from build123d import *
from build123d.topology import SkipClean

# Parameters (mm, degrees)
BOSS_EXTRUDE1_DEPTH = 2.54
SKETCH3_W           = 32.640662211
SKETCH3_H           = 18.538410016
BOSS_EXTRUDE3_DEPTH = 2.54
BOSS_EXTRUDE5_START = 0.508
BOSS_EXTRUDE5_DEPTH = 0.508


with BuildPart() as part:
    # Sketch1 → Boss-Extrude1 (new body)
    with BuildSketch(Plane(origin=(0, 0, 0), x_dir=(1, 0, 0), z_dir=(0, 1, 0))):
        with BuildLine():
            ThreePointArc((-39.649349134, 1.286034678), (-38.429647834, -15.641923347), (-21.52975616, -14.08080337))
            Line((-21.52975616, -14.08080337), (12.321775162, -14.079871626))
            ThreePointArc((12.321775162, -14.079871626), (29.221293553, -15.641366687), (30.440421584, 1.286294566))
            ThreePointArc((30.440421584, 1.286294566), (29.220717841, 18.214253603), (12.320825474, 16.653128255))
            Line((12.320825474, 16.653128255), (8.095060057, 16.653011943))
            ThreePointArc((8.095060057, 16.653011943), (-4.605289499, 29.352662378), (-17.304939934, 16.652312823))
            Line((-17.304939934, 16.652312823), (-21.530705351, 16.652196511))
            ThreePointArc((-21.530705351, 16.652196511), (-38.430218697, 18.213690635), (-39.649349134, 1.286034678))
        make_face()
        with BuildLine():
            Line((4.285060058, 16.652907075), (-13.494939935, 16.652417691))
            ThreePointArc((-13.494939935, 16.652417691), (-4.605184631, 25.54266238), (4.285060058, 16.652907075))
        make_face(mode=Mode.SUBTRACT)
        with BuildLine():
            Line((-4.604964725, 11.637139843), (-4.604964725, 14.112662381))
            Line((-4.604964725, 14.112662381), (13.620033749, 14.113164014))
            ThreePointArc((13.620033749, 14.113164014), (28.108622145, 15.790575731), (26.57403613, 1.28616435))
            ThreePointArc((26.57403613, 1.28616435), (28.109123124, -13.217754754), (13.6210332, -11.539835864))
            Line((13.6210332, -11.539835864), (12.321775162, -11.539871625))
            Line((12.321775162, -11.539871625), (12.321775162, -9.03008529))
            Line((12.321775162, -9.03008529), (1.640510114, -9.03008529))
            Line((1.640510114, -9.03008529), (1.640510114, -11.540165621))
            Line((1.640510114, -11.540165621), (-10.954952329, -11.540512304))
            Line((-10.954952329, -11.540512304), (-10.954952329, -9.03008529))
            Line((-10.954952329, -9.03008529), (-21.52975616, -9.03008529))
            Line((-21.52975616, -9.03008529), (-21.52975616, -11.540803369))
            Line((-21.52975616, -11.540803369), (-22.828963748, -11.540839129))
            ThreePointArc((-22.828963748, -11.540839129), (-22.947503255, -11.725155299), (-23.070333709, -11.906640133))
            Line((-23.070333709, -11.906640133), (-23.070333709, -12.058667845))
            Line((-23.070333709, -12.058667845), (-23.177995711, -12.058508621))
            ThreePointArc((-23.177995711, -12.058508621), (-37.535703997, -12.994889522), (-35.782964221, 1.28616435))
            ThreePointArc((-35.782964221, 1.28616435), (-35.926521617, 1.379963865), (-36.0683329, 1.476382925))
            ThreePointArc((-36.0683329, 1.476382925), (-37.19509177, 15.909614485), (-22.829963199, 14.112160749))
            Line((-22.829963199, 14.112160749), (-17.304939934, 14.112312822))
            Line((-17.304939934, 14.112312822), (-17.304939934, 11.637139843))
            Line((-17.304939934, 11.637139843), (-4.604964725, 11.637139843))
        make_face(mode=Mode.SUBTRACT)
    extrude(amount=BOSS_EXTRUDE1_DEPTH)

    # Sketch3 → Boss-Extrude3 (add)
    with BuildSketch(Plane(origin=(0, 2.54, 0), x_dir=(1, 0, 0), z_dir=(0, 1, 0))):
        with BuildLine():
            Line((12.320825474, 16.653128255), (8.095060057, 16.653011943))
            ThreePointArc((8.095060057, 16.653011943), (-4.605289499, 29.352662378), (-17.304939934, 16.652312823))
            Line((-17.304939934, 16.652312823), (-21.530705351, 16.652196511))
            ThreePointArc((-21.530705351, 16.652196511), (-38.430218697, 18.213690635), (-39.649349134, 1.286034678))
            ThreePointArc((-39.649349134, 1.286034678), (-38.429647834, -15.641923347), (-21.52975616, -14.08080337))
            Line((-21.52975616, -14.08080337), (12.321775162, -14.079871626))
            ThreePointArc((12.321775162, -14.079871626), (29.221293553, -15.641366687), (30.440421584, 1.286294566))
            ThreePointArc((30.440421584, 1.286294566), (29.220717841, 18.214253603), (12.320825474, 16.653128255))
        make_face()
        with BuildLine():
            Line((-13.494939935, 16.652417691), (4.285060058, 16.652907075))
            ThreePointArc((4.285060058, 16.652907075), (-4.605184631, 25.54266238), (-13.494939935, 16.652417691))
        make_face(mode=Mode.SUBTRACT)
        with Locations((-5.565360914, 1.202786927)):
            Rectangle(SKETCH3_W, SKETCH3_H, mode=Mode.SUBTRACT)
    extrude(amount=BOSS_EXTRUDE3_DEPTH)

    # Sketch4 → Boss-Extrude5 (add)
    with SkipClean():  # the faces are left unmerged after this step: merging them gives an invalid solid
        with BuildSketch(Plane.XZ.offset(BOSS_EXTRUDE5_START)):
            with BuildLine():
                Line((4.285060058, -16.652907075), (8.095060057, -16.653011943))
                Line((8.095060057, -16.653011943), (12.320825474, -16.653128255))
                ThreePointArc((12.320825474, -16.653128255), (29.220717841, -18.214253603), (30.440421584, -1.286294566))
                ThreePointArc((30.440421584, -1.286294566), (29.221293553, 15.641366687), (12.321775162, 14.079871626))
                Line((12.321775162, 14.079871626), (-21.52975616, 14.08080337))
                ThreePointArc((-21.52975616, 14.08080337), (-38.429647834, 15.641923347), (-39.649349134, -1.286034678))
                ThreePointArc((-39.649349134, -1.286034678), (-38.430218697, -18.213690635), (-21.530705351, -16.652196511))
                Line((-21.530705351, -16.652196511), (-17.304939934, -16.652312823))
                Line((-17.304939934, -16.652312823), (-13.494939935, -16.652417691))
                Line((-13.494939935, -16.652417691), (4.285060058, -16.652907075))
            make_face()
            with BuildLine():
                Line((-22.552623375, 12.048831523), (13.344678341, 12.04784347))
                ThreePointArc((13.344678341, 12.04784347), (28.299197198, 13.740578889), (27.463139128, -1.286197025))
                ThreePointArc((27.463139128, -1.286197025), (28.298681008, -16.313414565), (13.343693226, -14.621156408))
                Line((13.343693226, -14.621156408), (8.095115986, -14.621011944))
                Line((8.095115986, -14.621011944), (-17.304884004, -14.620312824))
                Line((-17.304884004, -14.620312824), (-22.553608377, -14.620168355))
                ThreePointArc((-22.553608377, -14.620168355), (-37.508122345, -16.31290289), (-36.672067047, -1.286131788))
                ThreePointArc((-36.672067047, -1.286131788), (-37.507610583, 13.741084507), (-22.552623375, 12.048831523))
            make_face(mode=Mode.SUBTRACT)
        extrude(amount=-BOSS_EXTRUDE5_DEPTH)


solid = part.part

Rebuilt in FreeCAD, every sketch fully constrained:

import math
import FreeCAD as App
import Part
import Sketcher

V = App.Vector
Q = App.Units.Quantity


def add_polygon(sketch, points):
    """Adds a closed chain of lines whose ends are joined by coincident constraints."""
    first, n = sketch.GeometryCount, len(points)
    for a, b in zip(points, points[1:] + points[:1]):
        sketch.addGeometry(Part.LineSegment(App.Vector(*a, 0), App.Vector(*b, 0)), False)
    for i in range(n):
        sketch.addConstraint(Sketcher.Constraint("Coincident", first + i, 2, first + (i + 1) % n, 1))

doc = App.newDocument("Part")
body = doc.addObject("PartDesign::Body", "Body")

# Sketch on XZ plane
sketch1 = body.newObject("Sketcher::SketchObject", "Sketch")
sketch1.AttachmentSupport = (doc.getObject("XZ_Plane"), [""])
sketch1.MapMode = "FlatFace"
sketch1.addGeometry([
    Part.ArcOfCircle(Part.Circle(V(-30.744663, 6.580281, 0), V(0, 0, 1), 11.881597), math.radians(39.144049), math.radians(221.457076)),  # 0
    Part.LineSegment(V(-21.529756, 14.080803, 0), V(12.321775, 14.079872, 0)),  # 1
    Part.ArcOfCircle(Part.Circle(V(21.536636, 6.580187, 0), V(0, 0, 1), 11.881032), math.radians(-41.460552), math.radians(140.858946)),  # 2
    Part.ArcOfCircle(Part.Circle(V(21.535735, -9.15261, 0), V(0, 0, 1), 11.881597), math.radians(-140.855974), math.radians(41.457073)),  # 3
    Part.LineSegment(V(12.320825, -16.653128, 0), V(8.09506, -16.653012, 0)),  # 4
    Part.ArcOfCircle(Part.Circle(V(-4.60494, -16.652662, 0), V(0, 0, 1), 12.7), math.radians(179.998423), math.radians(359.998423)),  # 5
    Part.LineSegment(V(-17.30494, -16.652313, 0), V(-21.530705, -16.652197, 0)),  # 6
    Part.ArcOfCircle(Part.Circle(V(-30.745564, -9.152513, 0), V(0, 0, 1), 11.88103), math.radians(138.539463), math.radians(320.858939)),  # 7
    Part.LineSegment(V(-17.30494, -11.63714, 0), V(-4.604965, -11.63714, 0)),  # 8
    Part.LineSegment(V(-4.604965, -11.63714, 0), V(-4.604965, -14.112662, 0)),  # 9
    Part.LineSegment(V(-4.604965, -14.112662, 0), V(13.620034, -14.113164, 0)),  # 10
    Part.ArcOfCircle(Part.Circle(V(21.535735, -9.15261, 0), V(0, 0, 1), 9.341597), math.radians(-147.925749), math.radians(57.361252)),  # 11
    Part.ArcOfCircle(Part.Circle(V(21.536636, 6.580187, 0), V(0, 0, 1), 9.341032), math.radians(-57.365595), math.radians(147.930136)),  # 12
    Part.LineSegment(V(13.621033, 11.539836, 0), V(12.321775, 11.539872, 0)),  # 13
    Part.LineSegment(V(12.321775, 11.539872, 0), V(12.321775, 9.030085, 0)),  # 14
    Part.LineSegment(V(12.321775, 9.030085, 0), V(1.64051, 9.030085, 0)),  # 15
    Part.LineSegment(V(1.64051, 9.030085, 0), V(1.64051, 11.540166, 0)),  # 16
    Part.LineSegment(V(1.64051, 11.540166, 0), V(-10.954952, 11.540512, 0)),  # 17
    Part.LineSegment(V(-10.954952, 11.540512, 0), V(-10.954952, 9.030085, 0)),  # 18
    Part.LineSegment(V(-10.954952, 9.030085, 0), V(-21.529756, 9.030085, 0)),  # 19
    Part.LineSegment(V(-21.529756, 9.030085, 0), V(-21.529756, 11.540803, 0)),  # 20
    Part.LineSegment(V(-21.529756, 11.540803, 0), V(-22.828964, 11.540839, 0)),  # 21
    Part.ArcOfCircle(Part.Circle(V(-30.744663, 6.580281, 0), V(0, 0, 1), 9.341597), math.radians(32.074277), math.radians(34.762535)),  # 22
    Part.LineSegment(V(-23.070334, 11.90664, 0), V(-23.070334, 12.058668, 0)),  # 23
    Part.LineSegment(V(-23.070334, 12.058668, 0), V(-23.177996, 12.058509, 0)),  # 24
    Part.ArcOfCircle(Part.Circle(V(-30.744663, 6.580281, 0), V(0, 0, 1), 9.341597), math.radians(35.904342), math.radians(237.36125)),  # 25
    Part.ArcOfCircle(Part.Circle(V(-30.745564, -9.152511, 0), V(0, 0, 1), 9.341029), math.radians(122.63442), math.radians(124.73815)),  # 26
    Part.ArcOfCircle(Part.Circle(V(-30.745564, -9.152513, 0), V(0, 0, 1), 9.34103), math.radians(124.73815), math.radians(327.93013)),  # 27
    Part.LineSegment(V(-22.829963, -14.112161, 0), V(-17.30494, -14.112313, 0)),  # 28
    Part.LineSegment(V(-17.30494, -14.112313, 0), V(-17.30494, -11.63714, 0)),  # 29
    Part.ArcOfCircle(Part.Circle(V(-4.60494, -16.652662, 0), V(0, 0, 1), 8.89), math.radians(179.998423), math.radians(359.998423)),  # 30
    Part.LineSegment(V(4.28506, -16.652907, 0), V(-13.49494, -16.652418, 0)),  # 31
], False)
sketch1.addConstraint([
    Sketcher.Constraint("Coincident", 0, 1, 1, 1),
    Sketcher.Constraint("Coincident", 1, 2, 2, 2),
    Sketcher.Constraint("Coincident", 2, 1, 3, 2),
    Sketcher.Constraint("Coincident", 3, 1, 4, 1),
    Sketcher.Constraint("Coincident", 4, 2, 5, 2),
    Sketcher.Constraint("Coincident", 5, 1, 6, 1),
    Sketcher.Constraint("Coincident", 6, 2, 7, 2),
    Sketcher.Constraint("Coincident", 7, 1, 0, 2),
    Sketcher.Constraint("Coincident", 8, 2, 9, 1),
    Sketcher.Constraint("Coincident", 9, 2, 10, 1),
    Sketcher.Constraint("Coincident", 10, 2, 11, 1),
    Sketcher.Constraint("Coincident", 11, 2, 12, 1),
    Sketcher.Constraint("Coincident", 12, 2, 13, 1),
    Sketcher.Constraint("Coincident", 13, 2, 14, 1),
    Sketcher.Constraint("Coincident", 14, 2, 15, 1),
    Sketcher.Constraint("Coincident", 15, 2, 16, 1),
    Sketcher.Constraint("Coincident", 16, 2, 17, 1),
    Sketcher.Constraint("Coincident", 17, 2, 18, 1),
    Sketcher.Constraint("Coincident", 18, 2, 19, 1),
    Sketcher.Constraint("Coincident", 19, 2, 20, 1),
    Sketcher.Constraint("Coincident", 20, 2, 21, 1),
    Sketcher.Constraint("Coincident", 21, 2, 22, 1),
    Sketcher.Constraint("Coincident", 22, 2, 23, 1),
    Sketcher.Constraint("Coincident", 23, 2, 24, 1),
    Sketcher.Constraint("Coincident", 24, 2, 25, 1),
    Sketcher.Constraint("Coincident", 25, 2, 26, 1),
    Sketcher.Constraint("Tangent", 26, 2, 27, 1),
    Sketcher.Constraint("Coincident", 27, 2, 28, 1),
    Sketcher.Constraint("Coincident", 28, 2, 29, 1),
    Sketcher.Constraint("Coincident", 29, 2, 8, 1),
    Sketcher.Constraint("Coincident", 30, 1, 31, 2),
    Sketcher.Constraint("Coincident", 31, 1, 30, 2),
    Sketcher.Constraint("Horizontal", 8),
    Sketcher.Constraint("Vertical", 9),
    Sketcher.Constraint("Vertical", 14),
    Sketcher.Constraint("Horizontal", 15),
    Sketcher.Constraint("Vertical", 16),
    Sketcher.Constraint("Vertical", 18),
    Sketcher.Constraint("Horizontal", 19),
    Sketcher.Constraint("Vertical", 20),
    Sketcher.Constraint("Vertical", 23),
    Sketcher.Constraint("Vertical", 29),
    Sketcher.Constraint("Coincident", 11, 3, 3, 3),
    Sketcher.Constraint("Coincident", 12, 3, 2, 3),
    Sketcher.Constraint("Coincident", 22, 3, 0, 3),
    Sketcher.Constraint("Coincident", 25, 3, 0, 3),
    Sketcher.Constraint("Coincident", 26, 3, 7, 3),
    Sketcher.Constraint("Coincident", 30, 3, 5, 3),
    Sketcher.Constraint("Equal", 0, 3),
    Sketcher.Constraint("Equal", 11, 22),
    Sketcher.Constraint("Equal", 22, 25),
    Sketcher.Constraint("Equal", 26, 27),
    Sketcher.Constraint("Parallel", 1, 4),
    Sketcher.Constraint("Parallel", 4, 6),
    Sketcher.Constraint("Parallel", 6, 10),
    Sketcher.Constraint("Parallel", 10, 13),
    Sketcher.Constraint("Parallel", 13, 17),
    Sketcher.Constraint("Parallel", 17, 21),
    Sketcher.Constraint("Parallel", 21, 28),
    Sketcher.Constraint("Parallel", 28, 31),
    Sketcher.Constraint("Horizontal", 15, 2, 18, 2),
    Sketcher.Constraint("Horizontal", 11, 2, 25, 2),
    Sketcher.Constraint("Vertical", 1, 2, 13, 2),
    Sketcher.Constraint("Vertical", 0, 1, 19, 2),
    Sketcher.Constraint("Vertical", 5, 1, 28, 2),
    Sketcher.Constraint("Equal", 4, 6),
    Sketcher.Constraint("Radius", 5, Q("0.5 in")),
    Sketcher.Constraint("Radius", 30, Q("0.35 in")),
    Sketcher.Constraint("DistanceY", 5, 3, 9, 2, Q("0.1 in")),
    Sketcher.Constraint("DistanceY", 13, 2, 1, 2, Q("0.1 in")),
    Sketcher.Constraint("DistanceY", 20, 2, 0, 1, Q("0.1 in")),
    Sketcher.Constraint("DistanceY", 5, 1, 28, 2, Q("0.1 in")),
    Sketcher.Constraint("Radius", 7, 11.88103),
    Sketcher.Constraint("Radius", 26, 9.341029),
    Sketcher.Constraint("Radius", 0, 11.881597),
    Sketcher.Constraint("Radius", 2, 11.881032),
    Sketcher.Constraint("Radius", 11, 9.341597),
    Sketcher.Constraint("Radius", 12, 9.341032),
    Sketcher.Constraint("Distance", 10, 18.224998),
    Sketcher.Constraint("DistanceY", 16, 1, 16, 2, 2.51008),
    Sketcher.Constraint("DistanceY", 20, 1, 20, 2, 2.510718),
    Sketcher.Constraint("DistanceX", 0, 3, 2, 3, 52.2813),
    Sketcher.Constraint("DistanceX", 3, 3, 2, 3, 0.000901),
    Sketcher.Constraint("DistanceX", 7, 3, 0, 3, 0.0009),
    Sketcher.Constraint("DistanceY", 7, 3, 2, 3, 15.7327),
    Sketcher.Constraint("DistanceY", 5, 1, 7, 3, 7.4998),
    Sketcher.Constraint("DistanceX", 10, 2, 3, 3, 7.915702),
    Sketcher.Constraint("DistanceY", 10, 2, 9, 2, 0.000502),
    Sketcher.Constraint("DistanceX", 2, 3, 11, 2, 5.0374),
    Sketcher.Constraint("DistanceY", 11, 2, 12, 2, 12.826),
    Sketcher.Constraint("DistanceY", 21, 2, 22, 2, 0.365801),
    Sketcher.Constraint("DistanceX", 8, 1, 8, 2, 12.699975),
    Sketcher.Constraint("DistanceX", 15, 2, 15, 1, 10.681265),
    Sketcher.Constraint("DistanceX", 19, 2, 19, 1, 10.574804),
    Sketcher.Constraint("DistanceY", 9, 2, 9, 1, 2.475523),
    Sketcher.Constraint("DistanceY", 23, 1, 23, 2, 0.152028),
    Sketcher.Constraint("DistanceY", -1, 1, 0, 3, 6.580281),
    Sketcher.Constraint("DistanceX", 5, 3, -1, 1, 4.60494),
    Sketcher.Constraint("DistanceY", -1, 1, 24, 2, 12.058509),
    Sketcher.Constraint("DistanceX", 26, 2, 25, 2, 0.285369),
    Sketcher.Constraint("DistanceY", 30, 1, 6, 2, 0.000221),
])
pad1 = body.newObject("PartDesign::Pad", "Pad")
pad1.Profile = sketch1
pad1.Length = Q("0.1 in")
pad1.Reversed = True

# Sketch on XZ plane
sketch2 = body.newObject("Sketcher::SketchObject", "Sketch001")
sketch2.AttachmentSupport = (doc.getObject("XZ_Plane"), [""])
sketch2.MapMode = "FlatFace"
sketch2.AttachmentOffset = App.Placement(V(0, 0, -0.1 * 25.4), App.Rotation())
sketch2.addGeometry(Part.LineSegment(V(12.320825, -16.653128, 0), V(8.09506, -16.653012, 0)), False)  # 0
sketch2.addGeometry(Part.ArcOfCircle(Part.Circle(V(-4.60494, -16.652662, 0), V(0, 0, 1), 12.7), math.radians(179.998423), math.radians(359.998423)), False)  # 1
sketch2.addGeometry(Part.LineSegment(V(-17.30494, -16.652313, 0), V(-21.530705, -16.652197, 0)), False)  # 2
sketch2.addGeometry(Part.ArcOfCircle(Part.Circle(V(-30.745564, -9.152513, 0), V(0, 0, 1), 11.88103), math.radians(138.539463), math.radians(320.858939)), False)  # 3
sketch2.addGeometry(Part.ArcOfCircle(Part.Circle(V(-30.744663, 6.580281, 0), V(0, 0, 1), 11.881597), math.radians(39.144049), math.radians(221.457076)), False)  # 4
sketch2.addGeometry(Part.LineSegment(V(-21.529756, 14.080803, 0), V(12.321775, 14.079872, 0)), False)  # 5
sketch2.addGeometry(Part.ArcOfCircle(Part.Circle(V(21.536636, 6.580187, 0), V(0, 0, 1), 11.881032), math.radians(-41.460552), math.radians(140.858946)), False)  # 6
sketch2.addGeometry(Part.ArcOfCircle(Part.Circle(V(21.535735, -9.15261, 0), V(0, 0, 1), 11.881597), math.radians(-140.855974), math.radians(41.457073)), False)  # 7
add_polygon(sketch2, [(10.75497, 8.066418), (-21.885692, 8.066418), (-21.885692, -10.471992), (10.75497, -10.471992)])  # lines 8-11
sketch2.addGeometry(Part.LineSegment(V(4.28506, -16.652907, 0), V(-13.49494, -16.652418, 0)), False)  # 12
sketch2.addGeometry(Part.ArcOfCircle(Part.Circle(V(-4.60494, -16.652662, 0), V(0, 0, 1), 8.89), math.radians(179.998423), math.radians(359.998423)), False)  # 13
sketch2.addConstraint([
    Sketcher.Constraint("Coincident", 0, 2, 1, 2),
    Sketcher.Constraint("Coincident", 1, 1, 2, 1),
    Sketcher.Constraint("Coincident", 2, 2, 3, 2),
    Sketcher.Constraint("Coincident", 3, 1, 4, 2),
    Sketcher.Constraint("Coincident", 4, 1, 5, 1),
    Sketcher.Constraint("Coincident", 5, 2, 6, 2),
    Sketcher.Constraint("Coincident", 6, 1, 7, 2),
    Sketcher.Constraint("Coincident", 7, 1, 0, 1),
    Sketcher.Constraint("Coincident", 12, 1, 13, 2),
    Sketcher.Constraint("Coincident", 13, 1, 12, 2),
    Sketcher.Constraint("Horizontal", 8),
    Sketcher.Constraint("Vertical", 9),
    Sketcher.Constraint("Horizontal", 10),
    Sketcher.Constraint("Vertical", 11),
    Sketcher.Constraint("Coincident", 13, 3, 1, 3),
    Sketcher.Constraint("Equal", 4, 7),
    Sketcher.Constraint("Parallel", 0, 2),
    Sketcher.Constraint("Parallel", 2, 5),
    Sketcher.Constraint("Parallel", 5, 12),
    Sketcher.Constraint("Equal", 0, 2),
    Sketcher.Constraint("Radius", 1, Q("0.5 in")),
    Sketcher.Constraint("Radius", 13, Q("0.35 in")),
    Sketcher.Constraint("Radius", 3, 11.88103),
    Sketcher.Constraint("Radius", 4, 11.881597),
    Sketcher.Constraint("Radius", 6, 11.881032),
    Sketcher.Constraint("DistanceY", 9, 2, 9, 1, 18.53841),
    Sketcher.Constraint("DistanceX", 3, 3, 4, 3, 0.0009),
    Sketcher.Constraint("DistanceX", 4, 3, 6, 3, 52.2813),
    Sketcher.Constraint("DistanceY", 3, 3, 6, 3, 15.7327),
    Sketcher.Constraint("DistanceX", 7, 3, 6, 3, 0.000901),
    Sketcher.Constraint("DistanceY", 0, 2, 6, 3, 23.233199),
    Sketcher.Constraint("DistanceY", 1, 1, 3, 3, 7.4998),
    Sketcher.Constraint("DistanceY", 2, 2, 4, 1, 30.733),
    Sketcher.Constraint("Distance", 5, 33.851531),
    Sketcher.Constraint("DistanceX", 8, 2, 8, 1, 32.640662),
    Sketcher.Constraint("DistanceX", 1, 3, -1, 1, 4.60494),
    Sketcher.Constraint("DistanceY", -1, 1, 4, 3, 6.580281),
    Sketcher.Constraint("DistanceY", 7, 3, -1, 1, 9.15261),
    Sketcher.Constraint("DistanceY", 0, 2, -1, 1, 16.653012),
    Sketcher.Constraint("DistanceY", -1, 1, 8, 2, 8.066418),
    Sketcher.Constraint("DistanceX", -1, 1, 10, 2, 10.75497),
    Sketcher.Constraint("DistanceY", 1, 3, 3, 3, 7.50015),
    Sketcher.Constraint("DistanceY", 7, 1, 12, 1, 0.000221),
])
pad2 = body.newObject("PartDesign::Pad", "Pad001")
pad2.Profile = sketch2
pad2.Length = Q("0.1 in")
pad2.Reversed = True

# Sketch on XZ plane
sketch3 = body.newObject("Sketcher::SketchObject", "Sketch002")
sketch3.AttachmentSupport = (doc.getObject("XZ_Plane"), [""])
sketch3.MapMode = "FlatFace"
sketch3.AttachmentOffset = App.Placement(V(0, 0, 0.02 * 25.4), App.Rotation())
sketch3.addGeometry([
    Part.LineSegment(V(8.09506, -16.653012, 0), V(12.320825, -16.653128, 0)),  # 0
    Part.ArcOfCircle(Part.Circle(V(21.535735, -9.15261, 0), V(0, 0, 1), 11.881597), math.radians(-140.855974), math.radians(41.457073)),  # 1
    Part.ArcOfCircle(Part.Circle(V(21.536636, 6.580187, 0), V(0, 0, 1), 11.881032), math.radians(-41.460552), math.radians(140.858946)),  # 2
    Part.LineSegment(V(12.321775, 14.079872, 0), V(-21.529756, 14.080803, 0)),  # 3
    Part.ArcOfCircle(Part.Circle(V(-30.744663, 6.580281, 0), V(0, 0, 1), 11.881597), math.radians(39.144049), math.radians(221.457076)),  # 4
    Part.ArcOfCircle(Part.Circle(V(-30.745564, -9.152513, 0), V(0, 0, 1), 11.88103), math.radians(138.539463), math.radians(320.858939)),  # 5
    Part.LineSegment(V(-21.530705, -16.652197, 0), V(-17.30494, -16.652313, 0)),  # 6
    Part.LineSegment(V(-17.30494, -16.652313, 0), V(8.09506, -16.653012, 0)),  # 7
    Part.ArcOfCircle(Part.Circle(V(-30.744663, 6.580281, 0), V(0, 0, 1), 9.849597), math.radians(33.724871), math.radians(233.001688)),  # 8
    Part.LineSegment(V(-22.552623, 12.048832, 0), V(13.344678, 12.047843, 0)),  # 9
    Part.ArcOfCircle(Part.Circle(V(21.536636, 6.580187, 0), V(0, 0, 1), 9.849032), math.radians(-53.005774), math.radians(146.279192)),  # 10
    Part.ArcOfCircle(Part.Circle(V(21.535735, -9.15261, 0), V(0, 0, 1), 9.849597), math.radians(-146.275155), math.radians(53.001688)),  # 11
    Part.LineSegment(V(13.343693, -14.621156, 0), V(8.095116, -14.621012, 0)),  # 12
    Part.LineSegment(V(8.095116, -14.621012, 0), V(-17.304884, -14.620313, 0)),  # 13
    Part.LineSegment(V(-17.304884, -14.620313, 0), V(-22.553608, -14.620168, 0)),  # 14
    Part.ArcOfCircle(Part.Circle(V(-30.745564, -9.152513, 0), V(0, 0, 1), 9.84903), math.radians(126.994241), math.radians(326.279185)),  # 15
], False)
sketch3.addConstraint([
    Sketcher.Constraint("Coincident", 0, 2, 1, 1),
    Sketcher.Constraint("Coincident", 1, 2, 2, 1),
    Sketcher.Constraint("Coincident", 2, 2, 3, 1),
    Sketcher.Constraint("Coincident", 3, 2, 4, 1),
    Sketcher.Constraint("Coincident", 4, 2, 5, 1),
    Sketcher.Constraint("Coincident", 5, 2, 6, 1),
    Sketcher.Constraint("Coincident", 6, 2, 7, 1),
    Sketcher.Constraint("Coincident", 7, 2, 0, 1),
    Sketcher.Constraint("Coincident", 8, 1, 9, 1),
    Sketcher.Constraint("Coincident", 9, 2, 10, 2),
    Sketcher.Constraint("Coincident", 10, 1, 11, 2),
    Sketcher.Constraint("Coincident", 11, 1, 12, 1),
    Sketcher.Constraint("Coincident", 12, 2, 13, 1),
    Sketcher.Constraint("Coincident", 13, 2, 14, 1),
    Sketcher.Constraint("Coincident", 14, 2, 15, 2),
    Sketcher.Constraint("Coincident", 15, 1, 8, 2),
    Sketcher.Constraint("Coincident", 8, 3, 4, 3),
    Sketcher.Constraint("Coincident", 10, 3, 2, 3),
    Sketcher.Constraint("Coincident", 11, 3, 1, 3),
    Sketcher.Constraint("Coincident", 15, 3, 5, 3),
    Sketcher.Constraint("Equal", 1, 4),
    Sketcher.Constraint("Equal", 8, 11),
    Sketcher.Constraint("Parallel", 0, 3),
    Sketcher.Constraint("Parallel", 3, 6),
    Sketcher.Constraint("Parallel", 6, 7),
    Sketcher.Constraint("Parallel", 7, 9),
    Sketcher.Constraint("Parallel", 9, 12),
    Sketcher.Constraint("Parallel", 12, 13),
    Sketcher.Constraint("Parallel", 13, 14),
    Sketcher.Constraint("Equal", 0, 6),
    Sketcher.Constraint("Equal", 7, 13),
    Sketcher.Constraint("Distance", 7, Q("1 in")),
    Sketcher.Constraint("DistanceY", 7, 2, 12, 2, Q("0.08 in")),
    Sketcher.Constraint("Radius", 5, 11.88103),
    Sketcher.Constraint("Radius", 15, 9.84903),
    Sketcher.Constraint("Radius", 1, 11.881597),
    Sketcher.Constraint("Radius", 2, 11.881032),
    Sketcher.Constraint("Radius", 8, 9.849597),
    Sketcher.Constraint("Radius", 10, 9.849032),
    Sketcher.Constraint("DistanceY", 0, 2, 5, 3, Q("0.2952998 in")),
    Sketcher.Constraint("DistanceY", 10, 1, 2, 3, Q("0.3097002 in")),
    Sketcher.Constraint("DistanceY", 5, 3, 15, 1, Q("0.3097 in")),
    Sketcher.Constraint("Distance", 9, 35.897302),
    Sketcher.Constraint("DistanceX", 1, 3, 2, 3, 0.000901),
    Sketcher.Constraint("DistanceX", 4, 3, 2, 3, 52.2813),
    Sketcher.Constraint("DistanceX", 5, 3, 4, 3, 0.0009),
    Sketcher.Constraint("DistanceY", 5, 3, 2, 3, 15.7327),
    Sketcher.Constraint("DistanceY", 6, 2, 5, 3, 7.4998),
    Sketcher.Constraint("Distance", 3, 33.851531),
    Sketcher.Constraint("DistanceY", 1, 3, -1, 1, 9.15261),
    Sketcher.Constraint("DistanceX", -1, 1, 1, 2, 30.440422),
    Sketcher.Constraint("DistanceX", 12, 2, 0, 2, 4.225709),
])
pad3 = body.newObject("PartDesign::Pad", "Pad002")
pad3.Profile = sketch3
pad3.Length = Q("0.02 in")
pad3.Reversed = True

doc.recompute()
